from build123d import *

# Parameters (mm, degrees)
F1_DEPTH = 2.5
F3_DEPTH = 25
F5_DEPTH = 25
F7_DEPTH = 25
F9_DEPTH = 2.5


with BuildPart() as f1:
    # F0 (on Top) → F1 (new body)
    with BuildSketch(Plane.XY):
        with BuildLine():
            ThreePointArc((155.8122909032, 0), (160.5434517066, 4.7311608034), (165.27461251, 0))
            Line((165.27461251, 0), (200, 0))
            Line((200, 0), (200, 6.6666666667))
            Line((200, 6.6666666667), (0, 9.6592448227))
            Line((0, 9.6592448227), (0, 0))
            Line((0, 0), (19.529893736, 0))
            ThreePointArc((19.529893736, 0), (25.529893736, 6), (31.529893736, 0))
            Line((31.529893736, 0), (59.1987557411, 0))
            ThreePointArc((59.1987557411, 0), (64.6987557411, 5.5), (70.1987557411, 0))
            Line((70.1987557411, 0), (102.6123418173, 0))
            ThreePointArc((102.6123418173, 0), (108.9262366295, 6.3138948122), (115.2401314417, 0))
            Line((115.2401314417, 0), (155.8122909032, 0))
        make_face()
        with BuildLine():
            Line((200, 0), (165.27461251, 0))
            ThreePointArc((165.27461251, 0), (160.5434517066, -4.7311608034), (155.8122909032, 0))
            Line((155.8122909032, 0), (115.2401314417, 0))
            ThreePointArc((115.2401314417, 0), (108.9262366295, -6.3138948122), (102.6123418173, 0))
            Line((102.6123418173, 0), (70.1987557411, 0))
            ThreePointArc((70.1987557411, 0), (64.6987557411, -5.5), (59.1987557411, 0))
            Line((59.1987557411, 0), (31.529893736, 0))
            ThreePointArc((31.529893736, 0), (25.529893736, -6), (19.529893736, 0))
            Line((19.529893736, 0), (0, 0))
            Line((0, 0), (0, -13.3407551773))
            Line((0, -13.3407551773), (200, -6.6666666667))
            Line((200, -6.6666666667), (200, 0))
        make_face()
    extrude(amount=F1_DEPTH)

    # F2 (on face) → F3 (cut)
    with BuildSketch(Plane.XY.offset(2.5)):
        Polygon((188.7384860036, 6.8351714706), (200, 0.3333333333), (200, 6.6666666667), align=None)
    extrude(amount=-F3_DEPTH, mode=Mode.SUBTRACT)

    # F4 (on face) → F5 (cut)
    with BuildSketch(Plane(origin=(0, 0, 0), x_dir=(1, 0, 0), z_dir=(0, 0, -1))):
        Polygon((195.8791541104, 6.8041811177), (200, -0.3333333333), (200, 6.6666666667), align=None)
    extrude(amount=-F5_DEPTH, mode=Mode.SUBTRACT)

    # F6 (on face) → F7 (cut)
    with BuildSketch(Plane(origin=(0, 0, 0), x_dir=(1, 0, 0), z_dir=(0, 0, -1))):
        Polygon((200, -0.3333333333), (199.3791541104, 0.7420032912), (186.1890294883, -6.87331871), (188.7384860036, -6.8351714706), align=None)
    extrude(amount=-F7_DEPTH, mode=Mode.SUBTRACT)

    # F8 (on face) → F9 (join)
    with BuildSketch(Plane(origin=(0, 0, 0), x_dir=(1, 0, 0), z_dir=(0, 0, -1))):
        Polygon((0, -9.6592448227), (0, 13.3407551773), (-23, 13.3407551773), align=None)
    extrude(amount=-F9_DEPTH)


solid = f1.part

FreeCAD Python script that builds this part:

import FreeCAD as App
import Part
import Sketcher

V = App.Vector
Q = App.Units.Quantity


def add_polygon(sketch, points):
    """Adds a closed chain of lines whose ends are joined by coincident constraints."""
    first, n = sketch.GeometryCount, len(points)
    for a, b in zip(points, points[1:] + points[:1]):
        sketch.addGeometry(Part.LineSegment(App.Vector(*a, 0), App.Vector(*b, 0)), False)
    for i in range(n):
        sketch.addConstraint(Sketcher.Constraint("Coincident", first + i, 2, first + (i + 1) % n, 1))

doc = App.newDocument("Part")
body = doc.addObject("PartDesign::Body", "Body")

sketch1 = doc.addObject("Sketcher::SketchObject", "Sketch")
body.addObject(sketch1)
sketch1.AttachmentSupport = (doc.XY_Plane, [""])
sketch1.MapMode = "FlatFace"
add_polygon(sketch1, [(200, 6.7), (0, 9.7), (0, -13.3), (200, -6.7)])
sketch1.addGeometry(Part.Circle(V(160.5, 0, 0), V(0, 0, 1), 4.7), False)
sketch1.addGeometry(Part.Circle(V(25.5, 0, 0), V(0, 0, 1), 6), False)
sketch1.addGeometry(Part.Circle(V(64.7, 0, 0), V(0, 0, 1), 5.5), False)
sketch1.addGeometry(Part.Circle(V(108.9, 0, 0), V(0, 0, 1), 6.3), False)
sketch1.addConstraint(Sketcher.Constraint("Vertical", 1))
sketch1.addConstraint(Sketcher.Constraint("Vertical", 3))
sketch1.addConstraint(Sketcher.Constraint("PointOnObject", 4, 3, -1))
sketch1.addConstraint(Sketcher.Constraint("PointOnObject", 5, 3, -1))
sketch1.addConstraint(Sketcher.Constraint("PointOnObject", 6, 3, -1))
sketch1.addConstraint(Sketcher.Constraint("PointOnObject", 7, 3, -1))
sketch1.addConstraint(Sketcher.Constraint("PointOnObject", 0, 2, -2))
sketch1.addConstraint(Sketcher.Constraint("Diameter", 5, Q("12 mm")))
sketch1.addConstraint(Sketcher.Constraint("Diameter", 6, Q("11 mm")))
sketch1.addConstraint(Sketcher.Constraint("DistanceY", 1, 2, 1, 1, Q("23 mm")))
sketch1.addConstraint(Sketcher.Constraint("DistanceX", -1, 1, 2, 2, Q("200 mm")))
sketch1.addConstraint(Sketcher.Constraint("Diameter", 4, Q("9.462322 mm")))
sketch1.addConstraint(Sketcher.Constraint("Diameter", 7, Q("12.62779 mm")))
sketch1.addConstraint(Sketcher.Constraint("DistanceY", 3, 1, 3, 2, Q("13.333333 mm")))
sketch1.addConstraint(Sketcher.Constraint("DistanceX", -1, 1, 4, 3, Q("160.543452 mm")))
sketch1.addConstraint(Sketcher.Constraint("DistanceX", 6, 3, 7, 3, Q("44.227481 mm")))
sketch1.addConstraint(Sketcher.Constraint("DistanceY", 1, 2, 2, 2, Q("6.674089 mm")))
sketch1.addConstraint(Sketcher.Constraint("DistanceX", -1, 1, 5, 3, Q("25.529894 mm")))
sketch1.addConstraint(Sketcher.Constraint("DistanceX", -1, 1, 6, 3, Q("64.698756 mm")))
sketch1.addConstraint(Sketcher.Constraint("DistanceY", -1, 1, 0, 2, Q("9.659245 mm")))
pad1 = doc.addObject("PartDesign::Pad", "Pad")
body.addObject(pad1)
pad1.Profile = sketch1
pad1.Length = 2.5

sketch2 = doc.addObject("Sketcher::SketchObject", "Sketch001")
body.addObject(sketch2)
sketch2.AttachmentSupport = (doc.XY_Plane, [""])
sketch2.MapMode = "FlatFace"
sketch2.AttachmentOffset = App.Placement(V(0, 0, 2.5), App.Rotation())
add_polygon(sketch2, [(189, 7), (200, 0), (200, 7)])
sketch2.addConstraint(Sketcher.Constraint("Vertical", 1))
sketch2.addConstraint(Sketcher.Constraint("Angle", 0, Q("-30 deg")))
sketch2.addConstraint(Sketcher.Constraint("DistanceX", -1, 1, 0, 2, Q("200 mm")))
sketch2.addConstraint(Sketcher.Constraint("DistanceY", 1, 1, 1, 2, Q("6.333333 mm")))
sketch2.addConstraint(Sketcher.Constraint("DistanceY", -1, 1, 2, 2, Q("6.835171 mm")))
sketch2.addConstraint(Sketcher.Constraint("DistanceY", 0, 2, 2, 2, Q("6.501838 mm")))
pocket1 = doc.addObject("PartDesign::Pocket", "Pocket")
body.addObject(pocket1)
pocket1.Profile = sketch2
pocket1.Length = 25

sketch3 = doc.addObject("Sketcher::SketchObject", "Sketch002")
body.addObject(sketch3)
sketch3.AttachmentSupport = (doc.XY_Plane, [""])
sketch3.MapMode = "FlatFace"
add_polygon(sketch3, [(195.9, -6.8), (200, 0.3), (200, -6.7)])
sketch3.addConstraint(Sketcher.Constraint("Vertical", 1))
sketch3.addConstraint(Sketcher.Constraint("DistanceY", 1, 2, 1, 1, Q("7 mm")))
sketch3.addConstraint(Sketcher.Constraint("Angle", 0, Q("60 deg")))
sketch3.addConstraint(Sketcher.Constraint("DistanceX", -1, 1, 0, 2, Q("200 mm")))
sketch3.addConstraint(Sketcher.Constraint("Distance", 0, Q("8.241692 mm")))
sketch3.addConstraint(Sketcher.Constraint("DistanceY", 2, 2, -1, 1, Q("6.804181 mm")))
pocket2 = doc.addObject("PartDesign::Pocket", "Pocket001")
body.addObject(pocket2)
pocket2.Profile = sketch3
pocket2.Length = 25
pocket2.Reversed = True

sketch4 = doc.addObject("Sketcher::SketchObject", "Sketch003")
body.addObject(sketch4)
sketch4.AttachmentSupport = (doc.XY_Plane, [""])
sketch4.MapMode = "FlatFace"
add_polygon(sketch4, [(200, 0.3), (199.4, -0.7), (186.2, 6.9), (188.7, 6.8)])
sketch4.addConstraint(Sketcher.Constraint("Perpendicular", 0, 1))
sketch4.addConstraint(Sketcher.Constraint("Parallel", 1, 3))
sketch4.addConstraint(Sketcher.Constraint("Angle", 0, Q("-120 deg")))
sketch4.addConstraint(Sketcher.Constraint("DistanceX", -1, 1, 3, 2, Q("200 mm")))
sketch4.addConstraint(Sketcher.Constraint("Distance", 0, Q("1.241692 mm")))
sketch4.addConstraint(Sketcher.Constraint("Distance", 2, Q("2.549742 mm")))
sketch4.addConstraint(Sketcher.Constraint("DistanceX", -1, 1, 1, 2, Q("186.189029 mm")))
sketch4.addConstraint(Sketcher.Constraint("DistanceY", -1, 1, 1, 2, Q("6.873319 mm")))
pocket3 = doc.addObject("PartDesign::Pocket", "Pocket002")
body.addObject(pocket3)
pocket3.Profile = sketch4
pocket3.Length = 25
pocket3.Reversed = True

sketch5 = doc.addObject("Sketcher::SketchObject", "Sketch004")
body.addObject(sketch5)
sketch5.AttachmentSupport = (doc.XY_Plane, [""])
sketch5.MapMode = "FlatFace"
add_polygon(sketch5, [(0, 10), (0, -13), (-23, -13)])
sketch5.addConstraint(Sketcher.Constraint("Vertical", 0))
sketch5.addConstraint(Sketcher.Constraint("Horizontal", 1))
sketch5.addConstraint(Sketcher.Constraint("PointOnObject", 0, 2, -2))
sketch5.addConstraint(Sketcher.Constraint("Equal", 1, 0))
sketch5.addConstraint(Sketcher.Constraint("DistanceX", 1, 2, 1, 1, Q("23 mm")))
sketch5.addConstraint(Sketcher.Constraint("DistanceY", 0, 2, -1, 1, Q("13.340755 mm")))
pad2 = doc.addObject("PartDesign::Pad", "Pad001")
body.addObject(pad2)
pad2.Profile = sketch5
pad2.Length = 2.5

doc.recompute()
